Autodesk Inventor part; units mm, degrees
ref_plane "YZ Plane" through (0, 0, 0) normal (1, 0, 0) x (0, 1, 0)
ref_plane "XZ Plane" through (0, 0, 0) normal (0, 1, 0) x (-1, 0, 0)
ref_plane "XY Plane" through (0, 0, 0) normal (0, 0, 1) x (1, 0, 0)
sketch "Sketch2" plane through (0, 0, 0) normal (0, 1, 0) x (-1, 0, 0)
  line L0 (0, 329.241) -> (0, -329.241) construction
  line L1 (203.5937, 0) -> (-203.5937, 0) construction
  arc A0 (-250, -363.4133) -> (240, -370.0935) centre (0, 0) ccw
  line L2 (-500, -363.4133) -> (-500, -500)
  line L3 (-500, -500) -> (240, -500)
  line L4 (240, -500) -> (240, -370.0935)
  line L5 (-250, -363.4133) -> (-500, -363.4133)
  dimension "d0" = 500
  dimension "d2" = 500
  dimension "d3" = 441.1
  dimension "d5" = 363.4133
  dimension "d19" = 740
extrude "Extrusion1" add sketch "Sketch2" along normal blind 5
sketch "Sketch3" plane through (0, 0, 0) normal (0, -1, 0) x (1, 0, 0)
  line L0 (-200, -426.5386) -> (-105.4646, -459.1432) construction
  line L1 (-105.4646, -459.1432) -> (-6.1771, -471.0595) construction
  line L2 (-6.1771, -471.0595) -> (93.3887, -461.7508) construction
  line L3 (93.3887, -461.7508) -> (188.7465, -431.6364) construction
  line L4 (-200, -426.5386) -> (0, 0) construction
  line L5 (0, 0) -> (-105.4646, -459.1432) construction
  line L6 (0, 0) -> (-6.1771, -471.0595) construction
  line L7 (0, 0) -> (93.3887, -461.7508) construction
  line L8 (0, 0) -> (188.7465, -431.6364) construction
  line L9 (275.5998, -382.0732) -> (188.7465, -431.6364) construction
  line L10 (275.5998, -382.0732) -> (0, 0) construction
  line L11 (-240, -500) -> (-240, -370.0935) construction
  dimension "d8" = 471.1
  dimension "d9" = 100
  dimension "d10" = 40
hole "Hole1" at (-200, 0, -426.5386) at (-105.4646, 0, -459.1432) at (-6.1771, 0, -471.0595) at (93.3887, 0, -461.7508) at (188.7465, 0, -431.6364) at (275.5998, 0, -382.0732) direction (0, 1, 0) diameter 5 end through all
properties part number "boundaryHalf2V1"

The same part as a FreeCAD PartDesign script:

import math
import FreeCAD as App
import Part
import Sketcher
from FreeCAD import Vector

doc = App.newDocument("Part")
body = doc.addObject("PartDesign::Body", "Body")

# Sketch on XZ plane
sketch1 = body.newObject("Sketcher::SketchObject", "Sketch")
sketch1.AttachmentSupport = (doc.getObject("XZ_Plane"), [""])
sketch1.MapMode = "FlatFace"
sketch1.addGeometry([
    Part.ArcOfCircle(Part.Circle(Vector(0, 0, 0), Vector(0, 0, 1), 441), math.radians(-123), math.radians(-55)),  # 0
    Part.LineSegment(Vector(250, -363, 0), Vector(500, -363, 0)),  # 1
    Part.LineSegment(Vector(500, -363, 0), Vector(500, -500, 0)),  # 2
    Part.LineSegment(Vector(500, -500, 0), Vector(-240, -500, 0)),  # 3
    Part.LineSegment(Vector(-240, -500, 0), Vector(-240, -370, 0)),  # 4
], False)
sketch1.addConstraint([
    Sketcher.Constraint("Coincident", 0, 2, 1, 1),
    Sketcher.Constraint("Coincident", 1, 2, 2, 1),
    Sketcher.Constraint("Coincident", 2, 2, 3, 1),
    Sketcher.Constraint("Coincident", 3, 2, 4, 1),
    Sketcher.Constraint("Coincident", 4, 2, 0, 1),
    Sketcher.Constraint("Horizontal", 1),
    Sketcher.Constraint("Vertical", 2),
    Sketcher.Constraint("Horizontal", 3),
    Sketcher.Constraint("Vertical", 4),
    Sketcher.Constraint("Coincident", 0, 3, -1, 1),
    Sketcher.Constraint("Radius", 0, 441.1),
    Sketcher.Constraint("DistanceX", 3, 2, 3, 1, 740.0),
    Sketcher.Constraint("DistanceX", -1, 1, 1, 2, 500.0),
    Sketcher.Constraint("DistanceY", 2, 2, -1, 1, 500.0),
    Sketcher.Constraint("DistanceX", 1, 1, 1, 2, 250.0),
])
pad1 = body.newObject("PartDesign::Pad", "Pad")
pad1.Profile = sketch1
pad1.Length = 5
pad1.Reversed = True

# Sketch on XZ plane
sketch2 = body.newObject("Sketcher::SketchObject", "Sketch001")
sketch2.AttachmentSupport = (doc.getObject("XZ_Plane"), [""])
sketch2.MapMode = "FlatFace"
sketch2.addGeometry([
    Part.Circle(Vector(-200, -426.5, 0), Vector(0, 0, 1), 2.5),  # 0
    Part.Circle(Vector(-105.5, -459.1, 0), Vector(0, 0, 1), 2.5),  # 1
    Part.Circle(Vector(-6.2, -471.1, 0), Vector(0, 0, 1), 2.5),  # 2
    Part.Circle(Vector(93.4, -461.8, 0), Vector(0, 0, 1), 2.5),  # 3
    Part.Circle(Vector(188.7, -431.6, 0), Vector(0, 0, 1), 2.5),  # 4
    Part.Circle(Vector(275.6, -382.1, 0), Vector(0, 0, 1), 2.5),  # 5
], False)
sketch2.addConstraint([
    Sketcher.Constraint("Equal", 0, 1),
    Sketcher.Constraint("Equal", 1, 2),
    Sketcher.Constraint("Equal", 2, 3),
    Sketcher.Constraint("Equal", 3, 4),
    Sketcher.Constraint("Equal", 4, 5),
    Sketcher.Constraint("Diameter", 0, 5.0),
    Sketcher.Constraint("DistanceX", 0, 3, -1, 1, 200.0),
    Sketcher.Constraint("DistanceY", 1, 3, 5, 3, 77.07),
    Sketcher.Constraint("DistanceX", 2, 3, -1, 1, 6.177),
    Sketcher.Constraint("DistanceY", 2, 3, 0, 3, 44.521),
    Sketcher.Constraint("DistanceY", 2, 3, 4, 3, 39.423),
    Sketcher.Constraint("DistanceX", 1, 3, 4, 3, 294.211),
    Sketcher.Constraint("DistanceX", 3, 3, 5, 3, 182.211),
    Sketcher.Constraint("DistanceX", 2, 3, 5, 3, 281.777),
    Sketcher.Constraint("DistanceY", 0, 3, -1, 1, 426.5386),
    Sketcher.Constraint("DistanceX", 1, 3, -1, 1, 105.4646),
    Sketcher.Constraint("DistanceY", 1, 3, -1, 1, 459.1432),
    Sketcher.Constraint("DistanceY", 3, 3, -1, 1, 461.7508),
])
doc.recompute()
hole = body.newObject("PartDesign::Hole", "Hole")
hole.Profile = sketch2
hole.ThreadType = "None"
hole.Diameter = 5
hole.DepthType = "ThroughAll"

doc.recompute()
